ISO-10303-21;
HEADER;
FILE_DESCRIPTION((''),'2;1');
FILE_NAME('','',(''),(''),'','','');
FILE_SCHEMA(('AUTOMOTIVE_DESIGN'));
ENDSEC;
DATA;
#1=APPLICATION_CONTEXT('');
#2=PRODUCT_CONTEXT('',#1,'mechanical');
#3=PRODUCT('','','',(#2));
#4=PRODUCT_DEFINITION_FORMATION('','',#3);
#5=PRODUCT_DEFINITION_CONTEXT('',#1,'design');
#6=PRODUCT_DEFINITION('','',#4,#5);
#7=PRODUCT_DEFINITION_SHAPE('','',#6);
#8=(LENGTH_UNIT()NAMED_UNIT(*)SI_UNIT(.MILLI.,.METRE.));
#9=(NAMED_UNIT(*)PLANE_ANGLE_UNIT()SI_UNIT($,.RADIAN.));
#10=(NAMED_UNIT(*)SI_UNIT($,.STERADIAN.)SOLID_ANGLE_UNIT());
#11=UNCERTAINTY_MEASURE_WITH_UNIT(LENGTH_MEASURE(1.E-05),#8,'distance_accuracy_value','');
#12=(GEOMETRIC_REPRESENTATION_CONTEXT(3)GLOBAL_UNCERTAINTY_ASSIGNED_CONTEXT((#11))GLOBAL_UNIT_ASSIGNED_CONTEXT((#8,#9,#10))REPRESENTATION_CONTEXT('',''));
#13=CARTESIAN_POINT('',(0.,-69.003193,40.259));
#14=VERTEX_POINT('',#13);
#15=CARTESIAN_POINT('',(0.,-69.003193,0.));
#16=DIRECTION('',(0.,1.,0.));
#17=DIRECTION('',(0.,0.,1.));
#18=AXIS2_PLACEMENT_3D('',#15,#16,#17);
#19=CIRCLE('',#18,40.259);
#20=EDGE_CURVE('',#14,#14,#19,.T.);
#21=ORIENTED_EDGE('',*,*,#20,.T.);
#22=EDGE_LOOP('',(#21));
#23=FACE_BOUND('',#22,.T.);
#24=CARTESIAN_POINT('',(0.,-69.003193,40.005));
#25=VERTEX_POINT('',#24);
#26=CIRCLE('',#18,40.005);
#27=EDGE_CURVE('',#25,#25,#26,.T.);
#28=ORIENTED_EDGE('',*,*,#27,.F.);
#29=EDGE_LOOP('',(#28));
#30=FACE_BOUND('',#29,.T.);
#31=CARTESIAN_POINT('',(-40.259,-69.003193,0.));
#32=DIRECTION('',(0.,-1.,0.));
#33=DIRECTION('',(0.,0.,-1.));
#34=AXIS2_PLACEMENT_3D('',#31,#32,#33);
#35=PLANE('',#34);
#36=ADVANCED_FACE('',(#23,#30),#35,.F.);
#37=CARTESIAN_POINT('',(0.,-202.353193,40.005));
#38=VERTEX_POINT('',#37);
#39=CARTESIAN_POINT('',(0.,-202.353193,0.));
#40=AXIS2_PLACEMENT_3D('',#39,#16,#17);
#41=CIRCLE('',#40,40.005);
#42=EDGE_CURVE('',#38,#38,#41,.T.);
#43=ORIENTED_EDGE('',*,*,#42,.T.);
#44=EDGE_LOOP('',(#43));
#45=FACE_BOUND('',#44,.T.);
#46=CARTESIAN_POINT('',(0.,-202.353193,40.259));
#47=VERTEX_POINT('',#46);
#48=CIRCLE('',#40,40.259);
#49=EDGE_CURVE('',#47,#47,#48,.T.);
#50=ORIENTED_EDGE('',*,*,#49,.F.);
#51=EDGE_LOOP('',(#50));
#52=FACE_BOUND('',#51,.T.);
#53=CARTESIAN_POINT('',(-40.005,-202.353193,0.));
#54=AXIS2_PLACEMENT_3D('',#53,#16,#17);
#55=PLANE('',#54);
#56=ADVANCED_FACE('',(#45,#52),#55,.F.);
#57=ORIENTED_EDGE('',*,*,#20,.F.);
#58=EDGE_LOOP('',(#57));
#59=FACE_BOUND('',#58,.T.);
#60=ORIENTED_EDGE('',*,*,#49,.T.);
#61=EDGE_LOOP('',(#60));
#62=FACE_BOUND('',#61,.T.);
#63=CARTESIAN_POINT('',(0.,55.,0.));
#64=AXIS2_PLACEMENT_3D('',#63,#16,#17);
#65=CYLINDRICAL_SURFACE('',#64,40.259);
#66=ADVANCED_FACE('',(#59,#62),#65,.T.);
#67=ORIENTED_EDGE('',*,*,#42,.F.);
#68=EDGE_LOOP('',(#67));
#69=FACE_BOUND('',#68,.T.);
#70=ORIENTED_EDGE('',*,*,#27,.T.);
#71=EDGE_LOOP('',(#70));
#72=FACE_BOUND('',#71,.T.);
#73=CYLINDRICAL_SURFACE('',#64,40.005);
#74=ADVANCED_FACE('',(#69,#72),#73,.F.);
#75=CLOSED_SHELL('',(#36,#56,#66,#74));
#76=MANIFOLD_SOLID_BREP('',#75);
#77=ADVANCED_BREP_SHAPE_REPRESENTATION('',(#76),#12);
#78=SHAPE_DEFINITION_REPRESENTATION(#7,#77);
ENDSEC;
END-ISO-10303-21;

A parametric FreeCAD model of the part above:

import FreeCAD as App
import Part
import Sketcher
Q = App.Units.Quantity

doc = App.newDocument("Part")
params = doc.addObject("Spreadsheet::Sheet", "Params")
for row, (alias, value) in enumerate([
    ("sketch1_width", "0.01 in"),
    ("sketch1_height", "5.25 in"),
    ("revolution_angle", "360 deg"),
], start=1):
    params.set(f"A{row}", alias)
    params.set(f"B{row}", "=" + value)
    params.setAlias(f"B{row}", alias)

body = doc.addObject("PartDesign::Body", "Body")

# Sketch on XY plane
sketch1 = doc.addObject("Sketcher::SketchObject", "Sketch")
body.addObject(sketch1)
sketch1.AttachmentSupport = (doc.XY_Plane, [""])
sketch1.MapMode = "FlatFace"
sketch1.addGeometry([
    Part.LineSegment(App.Vector(-40.26, -69, 0), App.Vector(-40.26, -202.35, 0)),
    Part.LineSegment(App.Vector(-40.26, -202.35, 0), App.Vector(-40.01, -202.35, 0)),
    Part.LineSegment(App.Vector(-40.01, -202.35, 0), App.Vector(-40.01, -69, 0)),
    Part.LineSegment(App.Vector(-40.01, -69, 0), App.Vector(-40.26, -69, 0)),
], False)
sketch1.addConstraint([
    Sketcher.Constraint("Coincident", 0, 2, 1, 1),
    Sketcher.Constraint("Coincident", 1, 2, 2, 1),
    Sketcher.Constraint("Coincident", 2, 2, 3, 1),
    Sketcher.Constraint("Coincident", 3, 2, 0, 1),
    Sketcher.Constraint("Vertical", 0),
    Sketcher.Constraint("Horizontal", 1),
    Sketcher.Constraint("Vertical", 2),
    Sketcher.Constraint("Horizontal", 3),
    Sketcher.Constraint("DistanceX", 1, 1, 1, 2, Q("0.01 in")),
    Sketcher.Constraint("DistanceY", 0, 2, 0, 1, Q("5.25 in")),
    Sketcher.Constraint("DistanceX", 0, 2, -1, 1, Q("1.585 in")),
    Sketcher.Constraint("DistanceY", 0, 2, -1, 1, Q("202.353193 mm")),
])
sketch1.setExpression("Constraints[8]", "Params.sketch1_width")
sketch1.setExpression("Constraints[9]", "Params.sketch1_height")
revolution = doc.addObject("PartDesign::Revolution", "Revolution")
body.addObject(revolution)
revolution.Profile = sketch1
revolution.ReferenceAxis = (sketch1, ["V_Axis"])
revolution.setExpression("Angle", "Params.revolution_angle")

doc.recompute()
